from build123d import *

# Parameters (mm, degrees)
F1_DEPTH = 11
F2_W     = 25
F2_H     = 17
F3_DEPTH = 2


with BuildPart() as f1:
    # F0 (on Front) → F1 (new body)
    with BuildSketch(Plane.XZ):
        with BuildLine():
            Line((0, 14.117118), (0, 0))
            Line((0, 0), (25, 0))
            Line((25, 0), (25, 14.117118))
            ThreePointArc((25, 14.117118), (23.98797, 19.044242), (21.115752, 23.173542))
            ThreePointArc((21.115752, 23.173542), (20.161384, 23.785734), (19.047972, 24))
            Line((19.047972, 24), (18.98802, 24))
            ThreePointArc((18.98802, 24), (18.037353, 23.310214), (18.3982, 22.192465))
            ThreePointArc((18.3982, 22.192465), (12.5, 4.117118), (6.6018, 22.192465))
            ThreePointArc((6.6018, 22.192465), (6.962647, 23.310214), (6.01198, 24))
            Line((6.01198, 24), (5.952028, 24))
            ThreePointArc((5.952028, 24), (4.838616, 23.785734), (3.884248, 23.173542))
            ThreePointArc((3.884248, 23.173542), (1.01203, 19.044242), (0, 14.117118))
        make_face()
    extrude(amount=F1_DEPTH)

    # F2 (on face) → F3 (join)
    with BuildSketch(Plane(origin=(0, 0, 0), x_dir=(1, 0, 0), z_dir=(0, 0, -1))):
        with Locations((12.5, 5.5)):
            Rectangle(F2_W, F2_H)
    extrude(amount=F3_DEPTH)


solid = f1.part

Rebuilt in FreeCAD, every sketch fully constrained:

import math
import FreeCAD as App
import Part
import Sketcher
from FreeCAD import Vector
Q = App.Units.Quantity

doc = App.newDocument("Part")
params = doc.addObject("Spreadsheet::Sheet", "Params")
for row, (alias, value) in enumerate([
    ("sketch1_radius", "2.999998 mm"),
    ("sketch1_radius2", "1 mm"),
    ("sketch1_radius3", "10 mm"),
    ("sketch1_width", "25 mm"),
    ("pad1_length", "11 mm"),
    ("sketch2_width", "25 mm"),
    ("sketch2_height", "17 mm"),
    ("pad2_length", "2 mm"),
], start=1):
    params.set(f"A{row}", alias)
    params.set(f"B{row}", "=" + value)
    params.setAlias(f"B{row}", alias)

body = doc.addObject("PartDesign::Body", "Body")

# Sketch on XZ plane
sketch1 = doc.addObject("Sketcher::SketchObject", "Sketch")
body.addObject(sketch1)
sketch1.AttachmentSupport = (doc.XZ_Plane, [""])
sketch1.MapMode = "FlatFace"
sketch1.addGeometry(Part.LineSegment(Vector(0, 14.117118, 0), Vector(0, 0, 0)), False)
sketch1.addGeometry(Part.LineSegment(Vector(0, 0, 0), Vector(25, 0, 0)), False)
sketch1.addGeometry(Part.LineSegment(Vector(25, 0, 0), Vector(25, 14.117118, 0)), False)
sketch1.addGeometry(Part.ArcOfCircle(Part.Circle(Vector(12.500003, 14.117119, 0), Vector(0, 0, 1), 12.499997), math.radians(-0.000005), math.radians(46.428433)), False)
sketch1.addGeometry(Part.ArcOfCircle(Part.Circle(Vector(19.047972, 21.000002, 0), Vector(0, 0, 1), 2.999998), math.radians(46.428421), math.radians(90.000008)), False)
sketch1.addGeometry(Part.LineSegment(Vector(19.047972, 24, 0), Vector(18.98802, 24, 0)), False)
sketch1.addGeometry(Part.ArcOfCircle(Part.Circle(Vector(18.98802, 23, 0), Vector(0, 0, 1), 1), math.radians(89.999988), math.radians(233.855781)), False)
sketch1.addGeometry(Part.ArcOfCircle(Part.Circle(Vector(12.5, 14.117118, 0), Vector(0, 0, 1), 10), math.radians(126.144237), math.radians(413.855763)), False)
sketch1.addGeometry(Part.ArcOfCircle(Part.Circle(Vector(6.01198, 23, 0), Vector(0, 0, 1), 1), math.radians(-53.855781), math.radians(90.000012)), False)
sketch1.addGeometry(Part.LineSegment(Vector(6.01198, 24, 0), Vector(5.952028, 24, 0)), False)
sketch1.addGeometry(Part.ArcOfCircle(Part.Circle(Vector(5.952028, 21.000002, 0), Vector(0, 0, 1), 2.999998), math.radians(89.999992), math.radians(133.571579)), False)
sketch1.addGeometry(Part.ArcOfCircle(Part.Circle(Vector(12.499997, 14.117119, 0), Vector(0, 0, 1), 12.499997), math.radians(133.571567), math.radians(180.000005)), False)
sketch1.addConstraint(Sketcher.Constraint("Coincident", 0, 2, 1, 1))
sketch1.addConstraint(Sketcher.Constraint("Coincident", 1, 2, 2, 1))
sketch1.addConstraint(Sketcher.Constraint("Tangent", 2, 2, 3, 1))
sketch1.addConstraint(Sketcher.Constraint("Tangent", 3, 2, 4, 1))
sketch1.addConstraint(Sketcher.Constraint("Tangent", 4, 2, 5, 1))
sketch1.addConstraint(Sketcher.Constraint("Tangent", 5, 2, 6, 1))
sketch1.addConstraint(Sketcher.Constraint("Tangent", 6, 2, 7, 2))
sketch1.addConstraint(Sketcher.Constraint("Tangent", 7, 1, 8, 1))
sketch1.addConstraint(Sketcher.Constraint("Tangent", 8, 2, 9, 1))
sketch1.addConstraint(Sketcher.Constraint("Tangent", 9, 2, 10, 1))
sketch1.addConstraint(Sketcher.Constraint("Tangent", 10, 2, 11, 1))
sketch1.addConstraint(Sketcher.Constraint("Tangent", 11, 2, 0, 1))
sketch1.addConstraint(Sketcher.Constraint("Vertical", 0))
sketch1.addConstraint(Sketcher.Constraint("Horizontal", 1))
sketch1.addConstraint(Sketcher.Constraint("Vertical", 2))
sketch1.addConstraint(Sketcher.Constraint("Horizontal", 5))
sketch1.addConstraint(Sketcher.Constraint("Horizontal", 9))
sketch1.addConstraint(Sketcher.Constraint("Coincident", 0, 2, -1, 1))
sketch1.addConstraint(Sketcher.Constraint("Coincident", 7, 3, 3, 3))
sketch1.addConstraint(Sketcher.Constraint("Coincident", 11, 3, 3, 3))
sketch1.addConstraint(Sketcher.Constraint("Equal", 6, 8))
sketch1.addConstraint(Sketcher.Constraint("Equal", 4, 10))
sketch1.addConstraint(Sketcher.Constraint("Equal", 3, 11))
sketch1.addConstraint(Sketcher.Constraint("Horizontal", 6, 3, 8, 3))
sketch1.addConstraint(Sketcher.Constraint("Radius", 4, Q("2.999998 mm")))
sketch1.addConstraint(Sketcher.Constraint("Radius", 6, Q("1 mm")))
sketch1.addConstraint(Sketcher.Constraint("Radius", 7, Q("10 mm")))
sketch1.addConstraint(Sketcher.Constraint("DistanceX", 1, 1, 1, 2, Q("25 mm")))
sketch1.addConstraint(Sketcher.Constraint("DistanceY", -1, 1, 4, 3, Q("21.000002 mm")))
sketch1.addConstraint(Sketcher.Constraint("DistanceX", -1, 1, 6, 2, Q("18.3982 mm")))
sketch1.setExpression("Constraints[24]", "Params.sketch1_radius")
sketch1.setExpression("Constraints[25]", "Params.sketch1_radius2")
sketch1.setExpression("Constraints[26]", "Params.sketch1_radius3")
sketch1.setExpression("Constraints[27]", "Params.sketch1_width")
pad1 = doc.addObject("PartDesign::Pad", "Pad")
body.addObject(pad1)
pad1.Profile = sketch1
pad1.setExpression("Length", "Params.pad1_length")

# Sketch on XY plane
sketch2 = doc.addObject("Sketcher::SketchObject", "Sketch001")
body.addObject(sketch2)
sketch2.AttachmentSupport = (doc.XY_Plane, [""])
sketch2.MapMode = "FlatFace"
sketch2.addGeometry(Part.LineSegment(Vector(0, -14, 0), Vector(0, 3, 0)), False)
sketch2.addGeometry(Part.LineSegment(Vector(0, 3, 0), Vector(25, 3, 0)), False)
sketch2.addGeometry(Part.LineSegment(Vector(25, 3, 0), Vector(25, -14, 0)), False)
sketch2.addGeometry(Part.LineSegment(Vector(25, -14, 0), Vector(0, -14, 0)), False)
sketch2.addConstraint(Sketcher.Constraint("Coincident", 0, 2, 1, 1))
sketch2.addConstraint(Sketcher.Constraint("Coincident", 1, 2, 2, 1))
sketch2.addConstraint(Sketcher.Constraint("Coincident", 2, 2, 3, 1))
sketch2.addConstraint(Sketcher.Constraint("Coincident", 3, 2, 0, 1))
sketch2.addConstraint(Sketcher.Constraint("Vertical", 0))
sketch2.addConstraint(Sketcher.Constraint("Horizontal", 1))
sketch2.addConstraint(Sketcher.Constraint("Vertical", 2))
sketch2.addConstraint(Sketcher.Constraint("Horizontal", 3))
sketch2.addConstraint(Sketcher.Constraint("PointOnObject", 0, 2, -2))
sketch2.addConstraint(Sketcher.Constraint("DistanceX", 1, 1, 1, 2, Q("25 mm")))
sketch2.addConstraint(Sketcher.Constraint("DistanceY", 0, 1, 0, 2, Q("17 mm")))
sketch2.addConstraint(Sketcher.Constraint("DistanceY", -1, 1, 0, 2, Q("3 mm")))
sketch2.setExpression("Constraints[9]", "Params.sketch2_width")
sketch2.setExpression("Constraints[10]", "Params.sketch2_height")
pad2 = doc.addObject("PartDesign::Pad", "Pad001")
body.addObject(pad2)
pad2.Profile = sketch2
pad2.setExpression("Length", "Params.pad2_length")
pad2.Reversed = True

doc.recompute()
